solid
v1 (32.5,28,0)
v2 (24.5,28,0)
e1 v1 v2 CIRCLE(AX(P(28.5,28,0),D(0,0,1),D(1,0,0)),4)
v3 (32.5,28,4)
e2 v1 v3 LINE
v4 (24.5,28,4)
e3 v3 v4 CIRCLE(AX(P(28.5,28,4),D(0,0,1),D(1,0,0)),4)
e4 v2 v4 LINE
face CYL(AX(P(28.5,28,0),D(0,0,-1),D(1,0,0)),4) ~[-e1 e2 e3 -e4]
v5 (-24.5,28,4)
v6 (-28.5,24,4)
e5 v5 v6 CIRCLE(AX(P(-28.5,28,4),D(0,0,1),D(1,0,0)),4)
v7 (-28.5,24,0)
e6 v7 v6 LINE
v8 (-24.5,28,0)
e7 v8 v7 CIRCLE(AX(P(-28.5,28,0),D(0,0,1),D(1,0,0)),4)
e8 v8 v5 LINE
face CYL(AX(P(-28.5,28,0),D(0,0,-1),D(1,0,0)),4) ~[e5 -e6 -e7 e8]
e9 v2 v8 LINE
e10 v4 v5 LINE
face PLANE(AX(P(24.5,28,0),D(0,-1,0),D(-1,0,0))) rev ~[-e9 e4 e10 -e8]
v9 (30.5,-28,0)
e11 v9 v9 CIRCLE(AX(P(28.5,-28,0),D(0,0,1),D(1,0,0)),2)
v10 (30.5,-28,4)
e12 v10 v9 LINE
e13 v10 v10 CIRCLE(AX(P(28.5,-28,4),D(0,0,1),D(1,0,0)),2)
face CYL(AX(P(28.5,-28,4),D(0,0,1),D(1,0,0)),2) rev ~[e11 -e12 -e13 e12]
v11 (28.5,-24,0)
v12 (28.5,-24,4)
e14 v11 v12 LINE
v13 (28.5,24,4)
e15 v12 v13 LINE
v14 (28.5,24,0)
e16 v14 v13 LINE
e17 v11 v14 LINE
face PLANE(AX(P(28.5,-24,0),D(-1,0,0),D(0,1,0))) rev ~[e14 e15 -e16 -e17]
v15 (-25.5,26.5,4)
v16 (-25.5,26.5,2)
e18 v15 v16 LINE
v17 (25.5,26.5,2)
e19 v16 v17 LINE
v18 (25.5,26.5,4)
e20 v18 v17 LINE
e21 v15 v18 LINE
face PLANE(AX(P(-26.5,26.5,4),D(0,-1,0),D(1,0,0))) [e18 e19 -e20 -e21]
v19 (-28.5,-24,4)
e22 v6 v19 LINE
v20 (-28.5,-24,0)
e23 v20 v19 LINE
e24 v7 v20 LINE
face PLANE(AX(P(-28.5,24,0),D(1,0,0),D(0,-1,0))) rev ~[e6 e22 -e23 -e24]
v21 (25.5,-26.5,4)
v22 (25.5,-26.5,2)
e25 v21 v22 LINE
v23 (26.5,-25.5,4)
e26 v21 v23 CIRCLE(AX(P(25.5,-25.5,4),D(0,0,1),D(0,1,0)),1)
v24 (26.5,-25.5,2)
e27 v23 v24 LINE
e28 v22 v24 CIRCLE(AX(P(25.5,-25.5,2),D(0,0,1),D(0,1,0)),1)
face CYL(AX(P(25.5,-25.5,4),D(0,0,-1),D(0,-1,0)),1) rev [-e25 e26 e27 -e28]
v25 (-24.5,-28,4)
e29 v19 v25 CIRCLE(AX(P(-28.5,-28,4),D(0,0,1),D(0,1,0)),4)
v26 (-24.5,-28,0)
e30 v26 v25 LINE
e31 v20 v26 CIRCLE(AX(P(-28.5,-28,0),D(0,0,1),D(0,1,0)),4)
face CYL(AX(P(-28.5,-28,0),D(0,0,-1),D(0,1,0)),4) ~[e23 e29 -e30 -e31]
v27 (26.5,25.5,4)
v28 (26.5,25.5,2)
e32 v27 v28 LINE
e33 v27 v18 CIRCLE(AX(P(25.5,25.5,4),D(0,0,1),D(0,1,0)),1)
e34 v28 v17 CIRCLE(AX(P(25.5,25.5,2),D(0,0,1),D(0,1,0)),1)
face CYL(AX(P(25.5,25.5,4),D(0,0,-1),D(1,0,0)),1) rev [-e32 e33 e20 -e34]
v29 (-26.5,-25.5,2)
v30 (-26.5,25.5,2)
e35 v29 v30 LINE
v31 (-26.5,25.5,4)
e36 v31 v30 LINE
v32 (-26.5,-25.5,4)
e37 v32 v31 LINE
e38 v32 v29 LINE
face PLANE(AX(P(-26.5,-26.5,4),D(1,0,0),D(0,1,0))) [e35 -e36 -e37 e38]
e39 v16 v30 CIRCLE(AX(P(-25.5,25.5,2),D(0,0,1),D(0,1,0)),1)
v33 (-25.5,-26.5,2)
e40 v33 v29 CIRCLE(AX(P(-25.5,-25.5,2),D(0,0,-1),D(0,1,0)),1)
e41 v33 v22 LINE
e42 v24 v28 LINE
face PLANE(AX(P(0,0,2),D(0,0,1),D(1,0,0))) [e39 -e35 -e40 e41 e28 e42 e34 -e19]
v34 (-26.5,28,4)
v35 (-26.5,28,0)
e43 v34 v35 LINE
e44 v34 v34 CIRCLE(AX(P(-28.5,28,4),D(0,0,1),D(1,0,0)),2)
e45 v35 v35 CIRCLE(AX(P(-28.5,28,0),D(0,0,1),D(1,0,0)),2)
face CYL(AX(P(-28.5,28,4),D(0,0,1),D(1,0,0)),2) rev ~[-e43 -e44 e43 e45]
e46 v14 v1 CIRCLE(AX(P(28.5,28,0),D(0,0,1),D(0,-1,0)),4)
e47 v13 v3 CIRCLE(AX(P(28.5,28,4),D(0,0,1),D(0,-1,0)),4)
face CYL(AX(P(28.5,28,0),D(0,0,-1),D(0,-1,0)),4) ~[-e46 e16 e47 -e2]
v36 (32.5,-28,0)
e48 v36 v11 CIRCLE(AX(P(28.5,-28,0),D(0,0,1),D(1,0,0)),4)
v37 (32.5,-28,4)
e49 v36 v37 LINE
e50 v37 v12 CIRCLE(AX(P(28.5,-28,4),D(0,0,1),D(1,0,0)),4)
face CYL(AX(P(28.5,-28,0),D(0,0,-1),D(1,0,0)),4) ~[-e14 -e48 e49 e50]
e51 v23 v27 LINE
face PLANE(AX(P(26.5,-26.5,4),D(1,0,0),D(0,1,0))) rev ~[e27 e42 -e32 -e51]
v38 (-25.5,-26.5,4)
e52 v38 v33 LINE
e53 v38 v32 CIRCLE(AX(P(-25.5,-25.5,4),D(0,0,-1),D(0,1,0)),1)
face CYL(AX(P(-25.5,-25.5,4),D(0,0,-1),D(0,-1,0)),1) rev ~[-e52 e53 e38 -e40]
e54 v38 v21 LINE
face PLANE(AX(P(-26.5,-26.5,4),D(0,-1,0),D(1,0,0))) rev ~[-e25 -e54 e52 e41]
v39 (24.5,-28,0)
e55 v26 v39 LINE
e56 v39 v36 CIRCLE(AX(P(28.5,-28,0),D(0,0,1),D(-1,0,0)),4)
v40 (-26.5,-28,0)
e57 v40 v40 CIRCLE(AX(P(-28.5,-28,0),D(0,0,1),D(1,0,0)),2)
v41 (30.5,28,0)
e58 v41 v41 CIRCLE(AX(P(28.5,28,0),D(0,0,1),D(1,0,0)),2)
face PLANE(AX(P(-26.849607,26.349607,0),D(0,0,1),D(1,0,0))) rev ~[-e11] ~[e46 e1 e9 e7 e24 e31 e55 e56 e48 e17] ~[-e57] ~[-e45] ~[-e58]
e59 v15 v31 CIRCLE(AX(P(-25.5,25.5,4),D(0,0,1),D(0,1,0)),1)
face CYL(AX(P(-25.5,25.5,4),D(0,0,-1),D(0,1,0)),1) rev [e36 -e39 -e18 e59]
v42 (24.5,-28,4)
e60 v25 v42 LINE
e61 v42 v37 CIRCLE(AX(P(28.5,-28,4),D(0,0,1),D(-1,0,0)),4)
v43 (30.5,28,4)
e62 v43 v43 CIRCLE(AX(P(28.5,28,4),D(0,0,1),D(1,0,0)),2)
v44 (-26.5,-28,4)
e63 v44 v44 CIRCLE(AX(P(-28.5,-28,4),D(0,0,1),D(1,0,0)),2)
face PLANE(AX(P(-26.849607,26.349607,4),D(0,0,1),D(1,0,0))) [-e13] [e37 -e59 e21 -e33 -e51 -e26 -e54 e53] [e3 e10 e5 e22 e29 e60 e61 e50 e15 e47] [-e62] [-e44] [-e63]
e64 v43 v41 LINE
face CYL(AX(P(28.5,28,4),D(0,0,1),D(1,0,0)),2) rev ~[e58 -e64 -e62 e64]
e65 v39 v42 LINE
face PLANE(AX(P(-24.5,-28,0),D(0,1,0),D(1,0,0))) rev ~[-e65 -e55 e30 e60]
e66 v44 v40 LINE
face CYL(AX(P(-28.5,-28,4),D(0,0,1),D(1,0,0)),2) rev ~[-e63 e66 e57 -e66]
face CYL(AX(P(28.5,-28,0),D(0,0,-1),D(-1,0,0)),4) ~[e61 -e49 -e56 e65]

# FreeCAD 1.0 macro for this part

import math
import FreeCAD as App
import Part
import Sketcher

V = App.Vector


def edges_at(feature, points):
    """Names of the edges that pass closest to the given points."""
    edges = feature.Shape.Edges
    near = lambda p: min(range(len(edges)), key=lambda i: edges[i].distToShape(Part.Vertex(*p))[0])
    return sorted({f"Edge{near(p) + 1}" for p in points})


def add_polygon(sketch, points):
    """Adds a closed chain of lines whose ends are joined by coincident constraints."""
    first, n = sketch.GeometryCount, len(points)
    for a, b in zip(points, points[1:] + points[:1]):
        sketch.addGeometry(Part.LineSegment(App.Vector(*a, 0), App.Vector(*b, 0)), False)
    for i in range(n):
        sketch.addConstraint(Sketcher.Constraint("Coincident", first + i, 2, first + (i + 1) % n, 1))

doc = App.newDocument("Part")
body = doc.addObject("PartDesign::Body", "Body")

# Sketch on XY plane
sketch1 = body.newObject("Sketcher::SketchObject", "Sketch")
sketch1.AttachmentSupport = (doc.getObject("XY_Plane"), [""])
sketch1.MapMode = "FlatFace"
sketch1.addGeometry([
    Part.ArcOfCircle(Part.Circle(V(-28.5, 28, 0), V(0, 0, 1), 4), math.radians(0), math.radians(270)),  # 0
    Part.LineSegment(V(-28.5, 24, 0), V(-28.5, -24, 0)),  # 1
    Part.ArcOfCircle(Part.Circle(V(-28.5, -28, 0), V(0, 0, 1), 4), math.radians(90), math.radians(360)),  # 2
    Part.LineSegment(V(-24.5, -28, 0), V(24.5, -28, 0)),  # 3
    Part.ArcOfCircle(Part.Circle(V(28.5, -28, 0), V(0, 0, 1), 4), math.radians(180), math.radians(360)),  # 4
    Part.ArcOfCircle(Part.Circle(V(28.5, -28, 0), V(0, 0, 1), 4), math.radians(0), math.radians(90)),  # 5
    Part.LineSegment(V(28.5, -24, 0), V(28.5, 24, 0)),  # 6
    Part.ArcOfCircle(Part.Circle(V(28.5, 28, 0), V(0, 0, 1), 4), math.radians(-90), math.radians(0)),  # 7
    Part.ArcOfCircle(Part.Circle(V(28.5, 28, 0), V(0, 0, 1), 4), math.radians(0), math.radians(180)),  # 8
    Part.LineSegment(V(24.5, 28, 0), V(-24.5, 28, 0)),  # 9
], False)
sketch1.addConstraint([
    Sketcher.Constraint("Coincident", 0, 2, 1, 1),
    Sketcher.Constraint("Coincident", 1, 2, 2, 1),
    Sketcher.Constraint("Coincident", 2, 2, 3, 1),
    Sketcher.Constraint("Coincident", 3, 2, 4, 1),
    Sketcher.Constraint("Tangent", 4, 2, 5, 1),
    Sketcher.Constraint("Coincident", 5, 2, 6, 1),
    Sketcher.Constraint("Coincident", 6, 2, 7, 1),
    Sketcher.Constraint("Tangent", 7, 2, 8, 1),
    Sketcher.Constraint("Coincident", 8, 2, 9, 1),
    Sketcher.Constraint("Coincident", 9, 2, 0, 1),
    Sketcher.Constraint("Vertical", 1),
    Sketcher.Constraint("Horizontal", 3),
    Sketcher.Constraint("Vertical", 6),
    Sketcher.Constraint("Horizontal", 9),
    Sketcher.Constraint("Equal", 0, 2),
    Sketcher.Constraint("Equal", 2, 4),
    Sketcher.Constraint("Equal", 4, 5),
    Sketcher.Constraint("Equal", 5, 7),
    Sketcher.Constraint("Equal", 7, 8),
    Sketcher.Constraint("Symmetric", 0, 3, 4, 3, -1, 1),
    Sketcher.Constraint("Symmetric", 2, 3, 7, 3, -1, 1),
    Sketcher.Constraint("Symmetric", 2, 3, 4, 3, -2),
    Sketcher.Constraint("Horizontal", 5, 3, 2, 2),
    Sketcher.Constraint("Horizontal", 3, 2, 4, 2),
    Sketcher.Constraint("Horizontal", 8, 3, 7, 2),
    Sketcher.Constraint("Horizontal", 7, 2, 8, 2),
    Sketcher.Constraint("Vertical", 2, 3, 0, 2),
    Sketcher.Constraint("Vertical", 8, 3, 5, 2),
    Sketcher.Constraint("Radius", 0, 4.0),
    Sketcher.Constraint("DistanceX", 3, 1, 3, 2, 49.0),
    Sketcher.Constraint("DistanceY", 1, 2, 1, 1, 48.0),
])
pad1 = body.newObject("PartDesign::Pad", "Pad")
pad1.Profile = sketch1
pad1.Length = 4

# Sketch on XY plane
sketch2 = body.newObject("Sketcher::SketchObject", "Sketch001")
sketch2.AttachmentSupport = (doc.getObject("XY_Plane"), [""])
sketch2.MapMode = "FlatFace"
sketch2.AttachmentOffset = App.Placement(V(0, 0, 4), App.Rotation())
sketch2.addGeometry([
    Part.Circle(V(-28.5, 28, 0), V(0, 0, 1), 2),
    Part.Circle(V(28.5, 28, 0), V(0, 0, 1), 2),
    Part.Circle(V(28.5, -28, 0), V(0, 0, 1), 2),
    Part.Circle(V(-28.5, -28, 0), V(0, 0, 1), 2),
], False)
sketch2.addConstraint([
    Sketcher.Constraint("Equal", 0, 1),
    Sketcher.Constraint("Equal", 1, 2),
    Sketcher.Constraint("Equal", 2, 3),
    Sketcher.Constraint("Symmetric", 0, 3, 2, 3, -1, 1),
    Sketcher.Constraint("Symmetric", 1, 3, 3, 3, -1, 1),
    Sketcher.Constraint("Symmetric", 0, 3, 1, 3, -2),
    Sketcher.Constraint("Diameter", 0, 4.0),
    Sketcher.Constraint("DistanceY", -1, 1, 0, 3, 28.0),
    Sketcher.Constraint("DistanceX", 0, 3, 1, 3, 57.0),
])
pocket1 = body.newObject("PartDesign::Pocket", "Pocket")
pocket1.Profile = sketch2
pocket1.Type = "ThroughAll"

# Sketch on XY plane
sketch3 = body.newObject("Sketcher::SketchObject", "Sketch002")
sketch3.AttachmentSupport = (doc.getObject("XY_Plane"), [""])
sketch3.MapMode = "FlatFace"
sketch3.AttachmentOffset = App.Placement(V(0, 0, 4), App.Rotation())
add_polygon(sketch3, [(-26, 26), (-26, -26), (26, -26), (26, 26)])  # lines 0-3
sketch3.addConstraint([
    Sketcher.Constraint("Vertical", 0),
    Sketcher.Constraint("Horizontal", 1),
    Sketcher.Constraint("Vertical", 2),
    Sketcher.Constraint("Horizontal", 3),
    Sketcher.Constraint("Symmetric", 0, 2, 2, 2, -1, 1),
    Sketcher.Constraint("Equal", 3, 0),
    Sketcher.Constraint("DistanceX", 1, 1, 1, 2, 53.0),
])
pocket2 = body.newObject("PartDesign::Pocket", "Pocket001")
pocket2.Profile = sketch3
pocket2.Length = 2
doc.recompute()

fillet = body.newObject("PartDesign::Fillet", "Fillet")
fillet.Base = (pocket2, edges_at(pocket2, [
    (-26.5, 26.5, 3),
    (26.5, 26.5, 3),
    (26.5, -26.5, 3),
    (-26.5, -26.5, 3),
]))
fillet.Radius = 1

doc.recompute()
